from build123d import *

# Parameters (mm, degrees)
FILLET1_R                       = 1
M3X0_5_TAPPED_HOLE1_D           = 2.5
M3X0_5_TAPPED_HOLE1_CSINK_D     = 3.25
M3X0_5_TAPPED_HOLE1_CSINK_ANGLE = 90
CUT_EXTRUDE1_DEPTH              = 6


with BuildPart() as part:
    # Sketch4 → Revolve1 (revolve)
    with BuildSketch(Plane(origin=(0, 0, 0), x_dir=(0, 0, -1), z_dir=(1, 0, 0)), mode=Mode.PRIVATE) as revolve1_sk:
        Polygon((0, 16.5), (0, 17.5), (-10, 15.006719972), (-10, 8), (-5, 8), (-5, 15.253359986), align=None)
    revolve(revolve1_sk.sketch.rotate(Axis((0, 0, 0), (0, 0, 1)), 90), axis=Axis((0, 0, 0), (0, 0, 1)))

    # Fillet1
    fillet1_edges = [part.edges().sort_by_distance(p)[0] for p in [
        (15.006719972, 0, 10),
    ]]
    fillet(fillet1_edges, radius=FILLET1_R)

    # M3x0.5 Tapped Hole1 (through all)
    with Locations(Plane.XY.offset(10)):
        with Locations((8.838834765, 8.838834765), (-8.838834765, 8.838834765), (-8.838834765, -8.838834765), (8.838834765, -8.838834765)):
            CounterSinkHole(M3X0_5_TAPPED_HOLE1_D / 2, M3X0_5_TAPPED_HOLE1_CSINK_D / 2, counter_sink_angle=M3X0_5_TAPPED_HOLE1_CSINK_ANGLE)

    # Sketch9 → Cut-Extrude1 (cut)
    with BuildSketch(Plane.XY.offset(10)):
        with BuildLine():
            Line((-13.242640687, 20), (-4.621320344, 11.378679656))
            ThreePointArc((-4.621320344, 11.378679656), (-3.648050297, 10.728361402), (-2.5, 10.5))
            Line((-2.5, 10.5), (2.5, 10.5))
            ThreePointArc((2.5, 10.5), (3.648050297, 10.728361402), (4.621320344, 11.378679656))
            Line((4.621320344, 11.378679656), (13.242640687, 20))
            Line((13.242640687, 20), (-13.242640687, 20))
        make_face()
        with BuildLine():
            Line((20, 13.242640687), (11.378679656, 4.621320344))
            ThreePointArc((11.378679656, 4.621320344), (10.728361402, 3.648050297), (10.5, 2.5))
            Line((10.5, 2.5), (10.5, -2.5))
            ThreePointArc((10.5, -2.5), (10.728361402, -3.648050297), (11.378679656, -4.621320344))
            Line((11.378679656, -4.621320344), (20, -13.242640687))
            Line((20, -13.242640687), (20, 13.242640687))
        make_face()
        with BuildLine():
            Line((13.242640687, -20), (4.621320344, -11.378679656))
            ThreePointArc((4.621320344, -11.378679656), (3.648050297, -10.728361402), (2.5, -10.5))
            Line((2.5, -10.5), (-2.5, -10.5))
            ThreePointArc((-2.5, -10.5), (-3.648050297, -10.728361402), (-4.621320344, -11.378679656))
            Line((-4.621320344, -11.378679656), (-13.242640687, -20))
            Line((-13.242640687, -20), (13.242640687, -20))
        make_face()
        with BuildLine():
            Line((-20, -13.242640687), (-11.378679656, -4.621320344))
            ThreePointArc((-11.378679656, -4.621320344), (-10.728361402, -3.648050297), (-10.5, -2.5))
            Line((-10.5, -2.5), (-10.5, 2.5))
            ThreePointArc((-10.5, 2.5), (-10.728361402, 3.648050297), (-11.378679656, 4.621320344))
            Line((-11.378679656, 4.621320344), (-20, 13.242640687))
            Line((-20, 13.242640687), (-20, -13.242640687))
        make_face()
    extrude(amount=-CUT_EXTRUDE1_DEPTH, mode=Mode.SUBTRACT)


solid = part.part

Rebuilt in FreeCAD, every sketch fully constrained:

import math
import FreeCAD as App
import Part
import Sketcher

V = App.Vector
Q = App.Units.Quantity


def edges_at(feature, points):
    """Names of the edges that pass closest to the given points."""
    edges = feature.Shape.Edges
    near = lambda p: min(range(len(edges)), key=lambda i: edges[i].distToShape(Part.Vertex(*p))[0])
    return sorted({f"Edge{near(p) + 1}" for p in points})

doc = App.newDocument("Part")
params = doc.addObject("Spreadsheet::Sheet", "Params")
for row, (alias, value) in enumerate([
    ("sketch1_width", "1 mm"),
    ("sketch1_height", "5 mm"),
    ("revolution_angle", "360 deg"),
    ("fillet_radius", "1 mm"),
    ("sketch2_diameter", "2.5 mm"),
    ("hole_diameter", "2.5 mm"),
    ("hole_csink_diameter", "3.25 mm"),
    ("sketch3_radius", "3 mm"),
    ("sketch3_width", "5 mm"),
    ("pocket1_length", "6 mm"),
], start=1):
    params.set(f"A{row}", alias)
    params.set(f"B{row}", "=" + value)
    params.setAlias(f"B{row}", alias)

body = doc.addObject("PartDesign::Body", "Body")

# Sketch on YZ plane
sketch1 = doc.addObject("Sketcher::SketchObject", "Sketch")
body.addObject(sketch1)
sketch1.AttachmentSupport = (doc.YZ_Plane, [""])
sketch1.MapMode = "FlatFace"
sketch1.addGeometry([
    Part.LineSegment(V(16.5, 0, 0), V(17.5, 0, 0)),  # 0
    Part.LineSegment(V(17.5, 0, 0), V(15, 10, 0)),  # 1
    Part.LineSegment(V(15, 10, 0), V(8, 10, 0)),  # 2
    Part.LineSegment(V(8, 10, 0), V(8, 5, 0)),  # 3
    Part.LineSegment(V(8, 5, 0), V(15.3, 5, 0)),  # 4
    Part.LineSegment(V(15.3, 5, 0), V(16.5, 0, 0)),  # 5
], False)
sketch1.addConstraint([
    Sketcher.Constraint("Coincident", 0, 2, 1, 1),
    Sketcher.Constraint("Coincident", 1, 2, 2, 1),
    Sketcher.Constraint("Coincident", 2, 2, 3, 1),
    Sketcher.Constraint("Coincident", 3, 2, 4, 1),
    Sketcher.Constraint("Coincident", 4, 2, 5, 1),
    Sketcher.Constraint("Coincident", 5, 2, 0, 1),
    Sketcher.Constraint("Horizontal", 0),
    Sketcher.Constraint("Horizontal", 2),
    Sketcher.Constraint("Vertical", 3),
    Sketcher.Constraint("Horizontal", 4),
    Sketcher.Constraint("PointOnObject", 0, 2, -1),
    Sketcher.Constraint("Parallel", 1, 5),
    Sketcher.Constraint("DistanceX", 0, 1, 0, 2, Q("1 mm")),
    Sketcher.Constraint("DistanceY", 3, 2, 3, 1, Q("5 mm")),
    Sketcher.Constraint("Angle", 1, Q("104 deg")),
    Sketcher.Constraint("DistanceY", -1, 1, 1, 2, Q("10 mm")),
    Sketcher.Constraint("DistanceX", -1, 1, 2, 2, Q("8 mm")),
    Sketcher.Constraint("DistanceX", -1, 1, 0, 2, Q("17.5 mm")),
])
sketch1.setExpression("Constraints[12]", "Params.sketch1_width")
sketch1.setExpression("Constraints[13]", "Params.sketch1_height")
revolution = doc.addObject("PartDesign::Revolution", "Revolution")
body.addObject(revolution)
revolution.Profile = sketch1
revolution.ReferenceAxis = (sketch1, ["V_Axis"])
revolution.setExpression("Angle", "Params.revolution_angle")
doc.recompute()

fillet = doc.addObject("PartDesign::Fillet", "Fillet")
body.addObject(fillet)
fillet.Base = (revolution, edges_at(revolution, [(15.007, 0, 10)]))
fillet.setExpression("Radius", "Params.fillet_radius")

# Sketch on XY plane
sketch2 = doc.addObject("Sketcher::SketchObject", "Sketch001")
body.addObject(sketch2)
sketch2.AttachmentSupport = (doc.XY_Plane, [""])
sketch2.MapMode = "FlatFace"
sketch2.AttachmentOffset = App.Placement(V(0, 0, 10), App.Rotation())
sketch2.addGeometry([
    Part.Circle(V(8.8, 8.8, 0), V(0, 0, 1), 1.2),
    Part.Circle(V(-8.8, 8.8, 0), V(0, 0, 1), 1.2),
    Part.Circle(V(-8.8, -8.8, 0), V(0, 0, 1), 1.2),
    Part.Circle(V(8.8, -8.8, 0), V(0, 0, 1), 1.2),
], False)
sketch2.addConstraint([
    Sketcher.Constraint("Equal", 0, 1),
    Sketcher.Constraint("Equal", 1, 2),
    Sketcher.Constraint("Equal", 2, 3),
    Sketcher.Constraint("Symmetric", 0, 3, 2, 3, -1, 1),
    Sketcher.Constraint("Symmetric", 1, 3, 3, 3, -1, 1),
    Sketcher.Constraint("Symmetric", 0, 3, 1, 3, -2),
    Sketcher.Constraint("Diameter", 0, Q("2.5 mm")),
    Sketcher.Constraint("DistanceX", 1, 3, 0, 3, Q("17.67767 mm")),
    Sketcher.Constraint("DistanceY", 2, 3, 1, 3, Q("17.67767 mm")),
])
sketch2.setExpression("Constraints[6]", "Params.sketch2_diameter")
doc.recompute()
hole = doc.addObject("PartDesign::Hole", "Hole")
body.addObject(hole)
hole.Profile = sketch2
hole.ThreadType = "None"
hole.setExpression("Diameter", "Params.hole_diameter")
hole.DepthType = "ThroughAll"
hole.HoleCutType = "Countersink"
hole.setExpression("HoleCutDiameter", "Params.hole_csink_diameter")
hole.HoleCutCountersinkAngle = 90

# Sketch on XY plane
sketch3 = doc.addObject("Sketcher::SketchObject", "Sketch002")
body.addObject(sketch3)
sketch3.AttachmentSupport = (doc.XY_Plane, [""])
sketch3.MapMode = "FlatFace"
sketch3.AttachmentOffset = App.Placement(V(0, 0, 10), App.Rotation())
sketch3.addGeometry([
    Part.LineSegment(V(-13.2, 20, 0), V(-4.6, 11.4, 0)),  # 0
    Part.ArcOfCircle(Part.Circle(V(-2.5, 13.5, 0), V(0, 0, 1), 3), math.radians(-135), math.radians(-90)),  # 1
    Part.LineSegment(V(-2.5, 10.5, 0), V(2.5, 10.5, 0)),  # 2
    Part.ArcOfCircle(Part.Circle(V(2.5, 13.5, 0), V(0, 0, 1), 3), math.radians(-90), math.radians(-45)),  # 3
    Part.LineSegment(V(4.6, 11.4, 0), V(13.2, 20, 0)),  # 4
    Part.LineSegment(V(13.2, 20, 0), V(-13.2, 20, 0)),  # 5
    Part.LineSegment(V(20, 13.2, 0), V(11.4, 4.6, 0)),  # 6
    Part.ArcOfCircle(Part.Circle(V(13.5, 2.5, 0), V(0, 0, 1), 3), math.radians(135), math.radians(180)),  # 7
    Part.LineSegment(V(10.5, 2.5, 0), V(10.5, -2.5, 0)),  # 8
    Part.ArcOfCircle(Part.Circle(V(13.5, -2.5, 0), V(0, 0, 1), 3), math.radians(180), math.radians(225)),  # 9
    Part.LineSegment(V(11.4, -4.6, 0), V(20, -13.2, 0)),  # 10
    Part.LineSegment(V(20, -13.2, 0), V(20, 13.2, 0)),  # 11
    Part.LineSegment(V(13.2, -20, 0), V(4.6, -11.4, 0)),  # 12
    Part.ArcOfCircle(Part.Circle(V(2.5, -13.5, 0), V(0, 0, 1), 3), math.radians(45), math.radians(90)),  # 13
    Part.LineSegment(V(2.5, -10.5, 0), V(-2.5, -10.5, 0)),  # 14
    Part.ArcOfCircle(Part.Circle(V(-2.5, -13.5, 0), V(0, 0, 1), 3), math.radians(90), math.radians(135)),  # 15
    Part.LineSegment(V(-4.6, -11.4, 0), V(-13.2, -20, 0)),  # 16
    Part.LineSegment(V(-13.2, -20, 0), V(13.2, -20, 0)),  # 17
    Part.LineSegment(V(-20, -13.2, 0), V(-11.4, -4.6, 0)),  # 18
    Part.ArcOfCircle(Part.Circle(V(-13.5, -2.5, 0), V(0, 0, 1), 3), math.radians(-45), math.radians(0)),  # 19
    Part.LineSegment(V(-10.5, -2.5, 0), V(-10.5, 2.5, 0)),  # 20
    Part.ArcOfCircle(Part.Circle(V(-13.5, 2.5, 0), V(0, 0, 1), 3), math.radians(0), math.radians(45)),  # 21
    Part.LineSegment(V(-11.4, 4.6, 0), V(-20, 13.2, 0)),  # 22
    Part.LineSegment(V(-20, 13.2, 0), V(-20, -13.2, 0)),  # 23
], False)
sketch3.addConstraint([
    Sketcher.Constraint("Tangent", 0, 2, 1, 1),
    Sketcher.Constraint("Tangent", 1, 2, 2, 1),
    Sketcher.Constraint("Tangent", 2, 2, 3, 1),
    Sketcher.Constraint("Tangent", 3, 2, 4, 1),
    Sketcher.Constraint("Coincident", 4, 2, 5, 1),
    Sketcher.Constraint("Coincident", 5, 2, 0, 1),
    Sketcher.Constraint("Tangent", 6, 2, 7, 1),
    Sketcher.Constraint("Tangent", 7, 2, 8, 1),
    Sketcher.Constraint("Tangent", 8, 2, 9, 1),
    Sketcher.Constraint("Tangent", 9, 2, 10, 1),
    Sketcher.Constraint("Coincident", 10, 2, 11, 1),
    Sketcher.Constraint("Coincident", 11, 2, 6, 1),
    Sketcher.Constraint("Tangent", 12, 2, 13, 1),
    Sketcher.Constraint("Tangent", 13, 2, 14, 1),
    Sketcher.Constraint("Tangent", 14, 2, 15, 1),
    Sketcher.Constraint("Tangent", 15, 2, 16, 1),
    Sketcher.Constraint("Coincident", 16, 2, 17, 1),
    Sketcher.Constraint("Coincident", 17, 2, 12, 1),
    Sketcher.Constraint("Tangent", 18, 2, 19, 1),
    Sketcher.Constraint("Tangent", 19, 2, 20, 1),
    Sketcher.Constraint("Tangent", 20, 2, 21, 1),
    Sketcher.Constraint("Tangent", 21, 2, 22, 1),
    Sketcher.Constraint("Coincident", 22, 2, 23, 1),
    Sketcher.Constraint("Coincident", 23, 2, 18, 1),
    Sketcher.Constraint("Horizontal", 2),
    Sketcher.Constraint("Horizontal", 5),
    Sketcher.Constraint("Vertical", 8),
    Sketcher.Constraint("Vertical", 11),
    Sketcher.Constraint("Horizontal", 14),
    Sketcher.Constraint("Horizontal", 17),
    Sketcher.Constraint("Vertical", 20),
    Sketcher.Constraint("Vertical", 23),
    Sketcher.Constraint("Equal", 1, 3),
    Sketcher.Constraint("Equal", 3, 7),
    Sketcher.Constraint("Equal", 7, 9),
    Sketcher.Constraint("Equal", 9, 13),
    Sketcher.Constraint("Equal", 13, 15),
    Sketcher.Constraint("Equal", 15, 19),
    Sketcher.Constraint("Equal", 19, 21),
    Sketcher.Constraint("Symmetric", 1, 3, 13, 3, -1, 1),
    Sketcher.Constraint("Symmetric", 7, 3, 19, 3, -1, 1),
    Sketcher.Constraint("Symmetric", 3, 2, 15, 2, -1, 1),
    Sketcher.Constraint("Symmetric", 5, 2, 17, 2, -1, 1),
    Sketcher.Constraint("Symmetric", 9, 2, 21, 2, -1, 1),
    Sketcher.Constraint("Symmetric", 11, 2, 23, 2, -1, 1),
    Sketcher.Constraint("Symmetric", 0, 2, 3, 2, -2),
    Sketcher.Constraint("Symmetric", 9, 2, 18, 2, -2),
    Sketcher.Constraint("Perpendicular", 0, 4),
    Sketcher.Constraint("Parallel", 4, 6),
    Sketcher.Constraint("Equal", 14, 8),
    Sketcher.Constraint("Equal", 17, 11),
    Sketcher.Constraint("Radius", 1, Q("3 mm")),
    Sketcher.Constraint("DistanceX", 2, 1, 2, 2, Q("5 mm")),
    Sketcher.Constraint("DistanceY", -1, 1, 4, 2, Q("20 mm")),
    Sketcher.Constraint("DistanceX", -1, 1, 10, 2, Q("20 mm")),
    Sketcher.Constraint("DistanceX", 3, 3, 7, 3, Q("11 mm")),
])
sketch3.setExpression("Constraints[51]", "Params.sketch3_radius")
sketch3.setExpression("Constraints[52]", "Params.sketch3_width")
pocket1 = doc.addObject("PartDesign::Pocket", "Pocket")
body.addObject(pocket1)
pocket1.Profile = sketch3
pocket1.setExpression("Length", "Params.pocket1_length")

doc.recompute()
